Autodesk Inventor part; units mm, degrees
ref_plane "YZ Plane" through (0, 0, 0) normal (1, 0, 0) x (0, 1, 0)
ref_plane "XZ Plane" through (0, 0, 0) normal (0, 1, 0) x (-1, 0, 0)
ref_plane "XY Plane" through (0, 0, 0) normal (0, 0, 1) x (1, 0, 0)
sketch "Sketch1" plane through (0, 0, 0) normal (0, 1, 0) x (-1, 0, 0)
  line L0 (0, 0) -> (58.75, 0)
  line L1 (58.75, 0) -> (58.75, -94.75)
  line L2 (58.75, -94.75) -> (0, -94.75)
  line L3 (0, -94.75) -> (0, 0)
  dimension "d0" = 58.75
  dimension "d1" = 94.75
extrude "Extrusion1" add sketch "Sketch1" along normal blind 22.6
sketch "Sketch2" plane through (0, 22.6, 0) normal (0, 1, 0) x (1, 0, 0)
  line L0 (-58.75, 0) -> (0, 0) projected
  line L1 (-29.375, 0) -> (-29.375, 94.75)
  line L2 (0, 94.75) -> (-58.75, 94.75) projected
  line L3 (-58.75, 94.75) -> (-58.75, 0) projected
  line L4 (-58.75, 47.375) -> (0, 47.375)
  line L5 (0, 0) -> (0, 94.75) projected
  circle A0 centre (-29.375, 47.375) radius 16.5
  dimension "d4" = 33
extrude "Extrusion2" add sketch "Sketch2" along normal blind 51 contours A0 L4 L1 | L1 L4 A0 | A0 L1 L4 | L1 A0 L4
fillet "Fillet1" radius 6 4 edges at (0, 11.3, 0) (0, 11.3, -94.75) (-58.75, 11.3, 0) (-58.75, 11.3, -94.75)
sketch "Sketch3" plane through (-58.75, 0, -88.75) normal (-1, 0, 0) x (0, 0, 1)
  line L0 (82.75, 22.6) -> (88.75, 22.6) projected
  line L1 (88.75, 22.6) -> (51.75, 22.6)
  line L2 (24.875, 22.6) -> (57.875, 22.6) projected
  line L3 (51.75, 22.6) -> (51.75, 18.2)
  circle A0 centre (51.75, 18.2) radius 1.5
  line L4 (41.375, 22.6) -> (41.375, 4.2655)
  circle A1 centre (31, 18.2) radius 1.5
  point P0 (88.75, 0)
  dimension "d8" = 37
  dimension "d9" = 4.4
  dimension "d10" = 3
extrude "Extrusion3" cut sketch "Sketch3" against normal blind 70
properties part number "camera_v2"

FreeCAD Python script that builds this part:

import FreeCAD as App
import Part
import Sketcher


def edges_at(feature, points):
    """Names of the edges that pass closest to the given points."""
    edges = feature.Shape.Edges
    near = lambda p: min(range(len(edges)), key=lambda i: edges[i].distToShape(Part.Vertex(*p))[0])
    return sorted({f"Edge{near(p) + 1}" for p in points})

doc = App.newDocument("Part")
params = doc.addObject("Spreadsheet::Sheet", "Params")
for row, (alias, value) in enumerate([
    ("sketch1_width", "58.75 mm"),
    ("sketch1_height", "94.75 mm"),
    ("pad1_length", "22.6 mm"),
    ("sketch2_diameter", "33 mm"),
    ("pad2_length", "51 mm"),
    ("fillet_radius", "6 mm"),
    ("sketch3_diameter", "3 mm"),
    ("pocket1_length", "70 mm"),
], start=1):
    params.set(f"A{row}", alias)
    params.set(f"B{row}", "=" + value)
    params.setAlias(f"B{row}", alias)

body = doc.addObject("PartDesign::Body", "Body")

sketch1 = body.newObject("Sketcher::SketchObject", "Sketch")
sketch1.AttachmentSupport = (doc.getObject("XZ_Plane"), [""])
sketch1.MapMode = "FlatFace"
sketch1.addGeometry(Part.LineSegment(App.Vector(-59, 0, 0), App.Vector(0, 0, 0)), False)
sketch1.addGeometry(Part.LineSegment(App.Vector(0, 0, 0), App.Vector(0, -95, 0)), False)
sketch1.addGeometry(Part.LineSegment(App.Vector(0, -95, 0), App.Vector(-59, -95, 0)), False)
sketch1.addGeometry(Part.LineSegment(App.Vector(-59, -95, 0), App.Vector(-59, 0, 0)), False)
sketch1.addConstraint(Sketcher.Constraint("Coincident", 0, 2, 1, 1))
sketch1.addConstraint(Sketcher.Constraint("Coincident", 1, 2, 2, 1))
sketch1.addConstraint(Sketcher.Constraint("Coincident", 2, 2, 3, 1))
sketch1.addConstraint(Sketcher.Constraint("Coincident", 3, 2, 0, 1))
sketch1.addConstraint(Sketcher.Constraint("Horizontal", 0))
sketch1.addConstraint(Sketcher.Constraint("Vertical", 1))
sketch1.addConstraint(Sketcher.Constraint("Horizontal", 2))
sketch1.addConstraint(Sketcher.Constraint("Vertical", 3))
sketch1.addConstraint(Sketcher.Constraint("Coincident", 0, 2, -1, 1))
sketch1.addConstraint(Sketcher.Constraint("DistanceX", 0, 1, 0, 2, 58.75))
sketch1.addConstraint(Sketcher.Constraint("DistanceY", 1, 2, 1, 1, 94.75))
sketch1.setExpression("Constraints[9]", "Params.sketch1_width")
sketch1.setExpression("Constraints[10]", "Params.sketch1_height")
pad1 = body.newObject("PartDesign::Pad", "Pad")
pad1.Profile = sketch1
pad1.setExpression("Length", "Params.pad1_length")
pad1.Reversed = True

sketch2 = body.newObject("Sketcher::SketchObject", "Sketch001")
sketch2.AttachmentSupport = (doc.getObject("XZ_Plane"), [""])
sketch2.MapMode = "FlatFace"
sketch2.AttachmentOffset = App.Placement(App.Vector(0, 0, -22.6), App.Rotation())
sketch2.addGeometry(Part.Circle(App.Vector(-29, -47, 0), App.Vector(0, 0, 1), 16), False)
sketch2.addConstraint(Sketcher.Constraint("Diameter", 0, 33.0))
sketch2.addConstraint(Sketcher.Constraint("DistanceX", 0, 3, -1, 1, 29.375))
sketch2.addConstraint(Sketcher.Constraint("DistanceY", 0, 3, -1, 1, 47.375))
sketch2.setExpression("Constraints[0]", "Params.sketch2_diameter")
pad2 = body.newObject("PartDesign::Pad", "Pad001")
pad2.Profile = sketch2
pad2.setExpression("Length", "Params.pad2_length")
pad2.Reversed = True
doc.recompute()

fillet = body.newObject("PartDesign::Fillet", "Fillet")
fillet.Base = (pad2, edges_at(pad2, [
    (0, 11.3, 0),
    (0, 11.3, -94.75),
    (-58.75, 11.3, 0),
    (-58.75, 11.3, -94.75),
]))
fillet.setExpression("Radius", "Params.fillet_radius")

sketch3 = body.newObject("Sketcher::SketchObject", "Sketch002")
sketch3.AttachmentSupport = (doc.getObject("YZ_Plane"), [""])
sketch3.MapMode = "FlatFace"
sketch3.AttachmentOffset = App.Placement(App.Vector(0, 0, -58.75), App.Rotation())
sketch3.addGeometry(Part.Circle(App.Vector(18.2, -37, 0), App.Vector(0, 0, 1), 1.5), False)
sketch3.addGeometry(Part.Circle(App.Vector(18.2, -57.8, 0), App.Vector(0, 0, 1), 1.5), False)
sketch3.addConstraint(Sketcher.Constraint("Equal", 0, 1))
sketch3.addConstraint(Sketcher.Constraint("Vertical", 0, 3, 1, 3))
sketch3.addConstraint(Sketcher.Constraint("Diameter", 0, 3.0))
sketch3.addConstraint(Sketcher.Constraint("DistanceY", 0, 3, -1, 1, 37.0))
sketch3.addConstraint(Sketcher.Constraint("DistanceX", -1, 1, 0, 3, 18.2))
sketch3.addConstraint(Sketcher.Constraint("DistanceY", 1, 3, -1, 1, 57.75))
sketch3.setExpression("Constraints[2]", "Params.sketch3_diameter")
pocket1 = body.newObject("PartDesign::Pocket", "Pocket")
pocket1.Profile = sketch3
pocket1.setExpression("Length", "Params.pocket1_length")
pocket1.Reversed = True

doc.recompute()
